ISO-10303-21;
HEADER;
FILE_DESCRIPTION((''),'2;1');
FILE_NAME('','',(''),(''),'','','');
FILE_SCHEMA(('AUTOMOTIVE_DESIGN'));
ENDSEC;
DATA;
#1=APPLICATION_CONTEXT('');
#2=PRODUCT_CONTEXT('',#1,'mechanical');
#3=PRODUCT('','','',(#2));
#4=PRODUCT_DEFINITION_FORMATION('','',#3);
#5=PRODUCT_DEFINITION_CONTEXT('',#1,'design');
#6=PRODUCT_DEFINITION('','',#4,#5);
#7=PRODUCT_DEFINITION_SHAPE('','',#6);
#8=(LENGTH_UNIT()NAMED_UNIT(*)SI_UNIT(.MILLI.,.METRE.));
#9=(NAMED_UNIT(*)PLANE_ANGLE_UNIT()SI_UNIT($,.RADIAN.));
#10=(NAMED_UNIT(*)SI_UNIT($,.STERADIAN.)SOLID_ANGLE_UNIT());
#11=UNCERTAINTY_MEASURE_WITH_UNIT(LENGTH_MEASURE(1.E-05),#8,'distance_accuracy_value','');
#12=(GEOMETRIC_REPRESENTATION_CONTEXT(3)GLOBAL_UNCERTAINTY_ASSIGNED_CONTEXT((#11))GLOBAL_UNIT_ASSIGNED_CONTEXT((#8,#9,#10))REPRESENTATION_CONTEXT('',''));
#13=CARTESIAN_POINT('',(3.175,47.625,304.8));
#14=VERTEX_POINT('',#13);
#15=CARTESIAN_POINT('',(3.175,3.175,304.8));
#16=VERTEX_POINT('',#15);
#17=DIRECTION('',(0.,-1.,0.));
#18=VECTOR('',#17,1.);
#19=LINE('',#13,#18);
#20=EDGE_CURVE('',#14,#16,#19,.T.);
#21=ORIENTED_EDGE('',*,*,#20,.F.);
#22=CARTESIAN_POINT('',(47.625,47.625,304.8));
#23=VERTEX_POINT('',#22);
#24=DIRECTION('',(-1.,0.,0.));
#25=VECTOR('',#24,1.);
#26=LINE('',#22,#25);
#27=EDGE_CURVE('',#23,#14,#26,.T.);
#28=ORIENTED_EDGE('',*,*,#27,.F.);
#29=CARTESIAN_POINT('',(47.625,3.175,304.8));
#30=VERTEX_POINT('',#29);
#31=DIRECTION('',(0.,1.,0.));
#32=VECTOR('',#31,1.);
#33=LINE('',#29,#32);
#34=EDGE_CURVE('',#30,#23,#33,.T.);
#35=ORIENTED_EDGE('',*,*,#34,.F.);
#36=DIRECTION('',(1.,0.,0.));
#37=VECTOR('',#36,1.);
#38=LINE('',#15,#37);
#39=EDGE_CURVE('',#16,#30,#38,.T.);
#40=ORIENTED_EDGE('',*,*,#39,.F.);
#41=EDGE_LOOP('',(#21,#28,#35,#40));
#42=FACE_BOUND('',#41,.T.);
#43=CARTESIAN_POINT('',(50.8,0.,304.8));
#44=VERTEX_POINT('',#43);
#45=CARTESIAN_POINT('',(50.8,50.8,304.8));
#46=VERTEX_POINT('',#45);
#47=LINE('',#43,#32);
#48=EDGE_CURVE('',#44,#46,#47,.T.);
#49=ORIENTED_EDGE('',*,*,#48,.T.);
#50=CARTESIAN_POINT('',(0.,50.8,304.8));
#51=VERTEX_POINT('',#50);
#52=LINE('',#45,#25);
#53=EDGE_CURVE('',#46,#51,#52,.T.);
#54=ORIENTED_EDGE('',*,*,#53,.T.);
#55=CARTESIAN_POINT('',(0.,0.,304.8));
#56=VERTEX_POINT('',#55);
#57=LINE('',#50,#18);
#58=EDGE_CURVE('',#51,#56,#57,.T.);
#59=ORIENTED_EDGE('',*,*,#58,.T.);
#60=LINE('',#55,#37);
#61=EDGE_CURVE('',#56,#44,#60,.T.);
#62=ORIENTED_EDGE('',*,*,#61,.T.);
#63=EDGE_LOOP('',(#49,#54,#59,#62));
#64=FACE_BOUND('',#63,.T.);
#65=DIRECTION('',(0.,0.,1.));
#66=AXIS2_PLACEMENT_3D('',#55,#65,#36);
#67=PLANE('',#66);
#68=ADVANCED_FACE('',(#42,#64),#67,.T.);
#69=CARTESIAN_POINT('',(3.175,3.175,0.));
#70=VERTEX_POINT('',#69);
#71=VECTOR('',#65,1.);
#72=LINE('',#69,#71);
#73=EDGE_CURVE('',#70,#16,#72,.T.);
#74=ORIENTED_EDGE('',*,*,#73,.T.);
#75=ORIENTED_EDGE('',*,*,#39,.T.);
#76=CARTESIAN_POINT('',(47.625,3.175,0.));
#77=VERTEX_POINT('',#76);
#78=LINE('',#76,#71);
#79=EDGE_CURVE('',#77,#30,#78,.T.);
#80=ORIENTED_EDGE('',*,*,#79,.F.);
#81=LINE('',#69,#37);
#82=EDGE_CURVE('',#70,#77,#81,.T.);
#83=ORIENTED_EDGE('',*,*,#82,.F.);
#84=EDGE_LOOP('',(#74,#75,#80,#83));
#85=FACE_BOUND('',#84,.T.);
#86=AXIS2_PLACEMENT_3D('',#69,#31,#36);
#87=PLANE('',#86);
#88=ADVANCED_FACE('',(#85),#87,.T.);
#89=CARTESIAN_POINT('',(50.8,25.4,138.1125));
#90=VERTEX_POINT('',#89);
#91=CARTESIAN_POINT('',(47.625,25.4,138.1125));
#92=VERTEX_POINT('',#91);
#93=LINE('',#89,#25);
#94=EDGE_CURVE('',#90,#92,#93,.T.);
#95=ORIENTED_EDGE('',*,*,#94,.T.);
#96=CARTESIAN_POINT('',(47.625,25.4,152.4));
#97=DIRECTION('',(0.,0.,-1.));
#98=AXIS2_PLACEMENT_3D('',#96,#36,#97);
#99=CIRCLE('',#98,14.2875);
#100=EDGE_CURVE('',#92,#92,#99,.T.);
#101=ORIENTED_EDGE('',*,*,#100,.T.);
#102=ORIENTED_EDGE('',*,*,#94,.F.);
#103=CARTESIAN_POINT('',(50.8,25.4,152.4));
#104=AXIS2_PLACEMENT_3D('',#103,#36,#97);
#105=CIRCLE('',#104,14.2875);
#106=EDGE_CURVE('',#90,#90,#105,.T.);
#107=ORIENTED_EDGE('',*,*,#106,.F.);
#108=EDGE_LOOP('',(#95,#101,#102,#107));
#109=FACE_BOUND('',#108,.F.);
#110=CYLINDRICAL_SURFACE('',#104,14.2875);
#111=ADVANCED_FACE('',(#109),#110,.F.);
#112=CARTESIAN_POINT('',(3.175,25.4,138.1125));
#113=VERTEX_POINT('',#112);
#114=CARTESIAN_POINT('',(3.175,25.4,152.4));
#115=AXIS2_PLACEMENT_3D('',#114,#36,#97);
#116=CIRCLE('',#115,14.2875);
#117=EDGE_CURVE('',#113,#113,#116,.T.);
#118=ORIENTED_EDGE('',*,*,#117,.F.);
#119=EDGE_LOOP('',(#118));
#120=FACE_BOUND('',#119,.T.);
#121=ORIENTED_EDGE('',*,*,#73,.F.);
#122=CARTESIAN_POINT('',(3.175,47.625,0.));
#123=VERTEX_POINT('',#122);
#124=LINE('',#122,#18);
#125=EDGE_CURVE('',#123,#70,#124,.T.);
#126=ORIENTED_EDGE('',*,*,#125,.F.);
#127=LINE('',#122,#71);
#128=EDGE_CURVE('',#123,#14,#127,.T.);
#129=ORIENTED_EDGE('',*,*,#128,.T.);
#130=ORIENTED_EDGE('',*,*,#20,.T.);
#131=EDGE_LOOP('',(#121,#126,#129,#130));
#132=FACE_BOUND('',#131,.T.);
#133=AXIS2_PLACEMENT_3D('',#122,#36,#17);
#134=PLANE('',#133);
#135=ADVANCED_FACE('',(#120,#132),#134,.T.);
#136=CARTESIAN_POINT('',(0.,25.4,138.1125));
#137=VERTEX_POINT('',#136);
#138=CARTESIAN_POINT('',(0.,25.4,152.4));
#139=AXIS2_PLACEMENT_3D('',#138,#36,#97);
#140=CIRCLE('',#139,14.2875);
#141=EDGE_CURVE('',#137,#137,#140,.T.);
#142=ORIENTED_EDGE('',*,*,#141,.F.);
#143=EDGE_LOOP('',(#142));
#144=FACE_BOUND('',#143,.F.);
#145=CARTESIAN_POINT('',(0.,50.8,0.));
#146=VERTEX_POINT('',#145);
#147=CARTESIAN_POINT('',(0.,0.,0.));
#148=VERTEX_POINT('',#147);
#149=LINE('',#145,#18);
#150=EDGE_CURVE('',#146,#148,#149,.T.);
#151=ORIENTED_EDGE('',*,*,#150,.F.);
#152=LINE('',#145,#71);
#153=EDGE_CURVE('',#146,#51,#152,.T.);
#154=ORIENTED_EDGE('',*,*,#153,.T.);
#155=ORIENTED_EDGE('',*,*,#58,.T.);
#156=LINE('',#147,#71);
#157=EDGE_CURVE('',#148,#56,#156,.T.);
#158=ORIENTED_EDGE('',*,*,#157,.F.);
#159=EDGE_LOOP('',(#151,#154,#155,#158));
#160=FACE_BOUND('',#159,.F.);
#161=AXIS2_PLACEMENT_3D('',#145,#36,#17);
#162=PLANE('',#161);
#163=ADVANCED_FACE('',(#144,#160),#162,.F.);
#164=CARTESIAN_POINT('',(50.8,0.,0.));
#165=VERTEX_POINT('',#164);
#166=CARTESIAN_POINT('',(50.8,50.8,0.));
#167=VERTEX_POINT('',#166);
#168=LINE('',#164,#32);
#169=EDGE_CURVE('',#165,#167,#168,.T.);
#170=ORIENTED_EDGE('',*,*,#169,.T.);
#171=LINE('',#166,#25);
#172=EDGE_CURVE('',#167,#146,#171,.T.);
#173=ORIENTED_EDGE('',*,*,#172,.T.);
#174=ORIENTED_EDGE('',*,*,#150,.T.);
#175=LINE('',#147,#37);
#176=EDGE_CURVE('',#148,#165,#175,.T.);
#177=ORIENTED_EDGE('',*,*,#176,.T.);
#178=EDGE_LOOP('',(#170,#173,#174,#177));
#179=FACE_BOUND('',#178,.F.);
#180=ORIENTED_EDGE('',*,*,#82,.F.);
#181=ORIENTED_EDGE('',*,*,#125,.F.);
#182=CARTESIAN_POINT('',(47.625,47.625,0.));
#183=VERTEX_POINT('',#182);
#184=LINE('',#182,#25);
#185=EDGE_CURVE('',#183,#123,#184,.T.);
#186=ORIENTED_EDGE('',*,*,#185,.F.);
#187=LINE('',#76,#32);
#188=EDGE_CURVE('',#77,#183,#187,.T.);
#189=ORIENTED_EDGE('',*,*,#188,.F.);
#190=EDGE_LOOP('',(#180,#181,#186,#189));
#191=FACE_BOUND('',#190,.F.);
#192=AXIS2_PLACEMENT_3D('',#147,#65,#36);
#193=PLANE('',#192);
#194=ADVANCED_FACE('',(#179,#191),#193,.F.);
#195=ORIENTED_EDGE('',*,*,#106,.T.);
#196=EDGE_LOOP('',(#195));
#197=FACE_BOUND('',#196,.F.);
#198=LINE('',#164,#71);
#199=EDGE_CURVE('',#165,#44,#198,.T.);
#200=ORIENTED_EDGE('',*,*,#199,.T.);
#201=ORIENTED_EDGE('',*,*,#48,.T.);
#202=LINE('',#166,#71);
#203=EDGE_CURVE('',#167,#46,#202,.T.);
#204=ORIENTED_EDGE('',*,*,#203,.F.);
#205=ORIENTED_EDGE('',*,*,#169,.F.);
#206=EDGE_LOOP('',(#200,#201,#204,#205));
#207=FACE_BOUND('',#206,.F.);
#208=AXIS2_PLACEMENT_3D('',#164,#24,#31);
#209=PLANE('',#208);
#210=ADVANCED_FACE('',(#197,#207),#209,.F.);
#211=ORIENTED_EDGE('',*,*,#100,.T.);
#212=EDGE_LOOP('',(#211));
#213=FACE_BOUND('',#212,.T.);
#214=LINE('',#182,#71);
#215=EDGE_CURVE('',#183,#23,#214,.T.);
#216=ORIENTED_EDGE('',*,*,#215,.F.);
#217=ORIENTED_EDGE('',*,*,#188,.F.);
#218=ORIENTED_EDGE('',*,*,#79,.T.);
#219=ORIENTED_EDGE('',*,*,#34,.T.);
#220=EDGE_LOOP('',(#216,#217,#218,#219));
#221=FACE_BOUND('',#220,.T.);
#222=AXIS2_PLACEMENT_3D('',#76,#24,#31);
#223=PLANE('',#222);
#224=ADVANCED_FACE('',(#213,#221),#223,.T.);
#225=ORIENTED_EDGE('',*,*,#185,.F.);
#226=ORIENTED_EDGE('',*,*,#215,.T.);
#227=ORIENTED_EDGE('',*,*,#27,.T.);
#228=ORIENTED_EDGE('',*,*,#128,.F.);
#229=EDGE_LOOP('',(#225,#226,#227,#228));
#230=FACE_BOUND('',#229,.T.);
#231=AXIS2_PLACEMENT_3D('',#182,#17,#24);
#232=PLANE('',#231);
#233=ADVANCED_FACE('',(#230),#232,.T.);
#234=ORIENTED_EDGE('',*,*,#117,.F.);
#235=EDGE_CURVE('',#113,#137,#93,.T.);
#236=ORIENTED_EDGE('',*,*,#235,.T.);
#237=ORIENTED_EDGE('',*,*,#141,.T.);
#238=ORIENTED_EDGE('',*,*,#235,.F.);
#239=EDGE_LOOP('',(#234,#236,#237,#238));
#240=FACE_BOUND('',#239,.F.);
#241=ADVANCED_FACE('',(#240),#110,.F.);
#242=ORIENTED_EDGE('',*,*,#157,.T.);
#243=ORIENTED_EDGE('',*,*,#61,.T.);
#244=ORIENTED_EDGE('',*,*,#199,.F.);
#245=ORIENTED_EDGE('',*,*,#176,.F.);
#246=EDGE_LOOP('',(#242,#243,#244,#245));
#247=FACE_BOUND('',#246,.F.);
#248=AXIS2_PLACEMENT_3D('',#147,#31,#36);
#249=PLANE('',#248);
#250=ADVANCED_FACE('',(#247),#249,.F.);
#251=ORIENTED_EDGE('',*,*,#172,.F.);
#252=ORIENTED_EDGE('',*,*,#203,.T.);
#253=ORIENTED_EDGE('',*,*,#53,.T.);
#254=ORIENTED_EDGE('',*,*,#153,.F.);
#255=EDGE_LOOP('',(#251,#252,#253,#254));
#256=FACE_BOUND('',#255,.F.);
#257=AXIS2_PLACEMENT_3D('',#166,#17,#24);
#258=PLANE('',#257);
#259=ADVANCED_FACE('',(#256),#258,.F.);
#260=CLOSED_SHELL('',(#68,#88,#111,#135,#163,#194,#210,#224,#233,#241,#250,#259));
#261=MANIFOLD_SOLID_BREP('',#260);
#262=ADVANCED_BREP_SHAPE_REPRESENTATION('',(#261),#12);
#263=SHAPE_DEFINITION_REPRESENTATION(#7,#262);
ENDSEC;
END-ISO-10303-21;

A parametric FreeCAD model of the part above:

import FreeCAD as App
import Part
import Sketcher

V = App.Vector
Q = App.Units.Quantity


def add_polygon(sketch, points):
    """Adds a closed chain of lines whose ends are joined by coincident constraints."""
    first, n = sketch.GeometryCount, len(points)
    for a, b in zip(points, points[1:] + points[:1]):
        sketch.addGeometry(Part.LineSegment(App.Vector(*a, 0), App.Vector(*b, 0)), False)
    for i in range(n):
        sketch.addConstraint(Sketcher.Constraint("Coincident", first + i, 2, first + (i + 1) % n, 1))

doc = App.newDocument("Part")
body = doc.addObject("PartDesign::Body", "Body")

# Sketch on XY plane
sketch1 = body.newObject("Sketcher::SketchObject", "Sketch")
sketch1.AttachmentSupport = (doc.getObject("XY_Plane"), [""])
sketch1.MapMode = "FlatFace"
add_polygon(sketch1, [(0, 51), (0, 0), (51, 0), (51, 51)])  # lines 0-3
add_polygon(sketch1, [(48, 3), (3, 3), (3, 48), (48, 48)])  # lines 4-7
sketch1.addConstraint(Sketcher.Constraint("Vertical", 0))
sketch1.addConstraint(Sketcher.Constraint("Horizontal", 1))
sketch1.addConstraint(Sketcher.Constraint("Vertical", 2))
sketch1.addConstraint(Sketcher.Constraint("Horizontal", 3))
sketch1.addConstraint(Sketcher.Constraint("Horizontal", 4))
sketch1.addConstraint(Sketcher.Constraint("Vertical", 5))
sketch1.addConstraint(Sketcher.Constraint("Horizontal", 6))
sketch1.addConstraint(Sketcher.Constraint("Vertical", 7))
sketch1.addConstraint(Sketcher.Constraint("Coincident", 0, 2, -1, 1))
sketch1.addConstraint(Sketcher.Constraint("Equal", 3, 0))
sketch1.addConstraint(Sketcher.Constraint("Equal", 6, 5))
sketch1.addConstraint(Sketcher.Constraint("DistanceX", 1, 1, 1, 2, Q("2 in")))
sketch1.addConstraint(Sketcher.Constraint("DistanceX", 4, 2, 4, 1, Q("1.75 in")))
sketch1.addConstraint(Sketcher.Constraint("DistanceX", -1, 1, 4, 2, Q("0.125 in")))
sketch1.addConstraint(Sketcher.Constraint("DistanceY", -1, 1, 4, 2, Q("0.125 in")))
pad1 = body.newObject("PartDesign::Pad", "Pad")
pad1.Profile = sketch1
pad1.Length = Q("12 in")

# Sketch on YZ plane
sketch2 = body.newObject("Sketcher::SketchObject", "Sketch001")
sketch2.AttachmentSupport = (doc.getObject("YZ_Plane"), [""])
sketch2.MapMode = "FlatFace"
sketch2.AttachmentOffset = App.Placement(V(0, 0, 2 * 25.4), App.Rotation())
sketch2.addGeometry(Part.Circle(V(25, 152, 0), V(0, 0, 1), 14), False)
sketch2.addConstraint(Sketcher.Constraint("Diameter", 0, Q("1.125 in")))
sketch2.addConstraint(Sketcher.Constraint("DistanceX", -1, 1, 0, 3, Q("1 in")))
sketch2.addConstraint(Sketcher.Constraint("DistanceY", -1, 1, 0, 3, Q("6 in")))
pocket1 = body.newObject("PartDesign::Pocket", "Pocket")
pocket1.Profile = sketch2
pocket1.Type = "ThroughAll"

doc.recompute()
